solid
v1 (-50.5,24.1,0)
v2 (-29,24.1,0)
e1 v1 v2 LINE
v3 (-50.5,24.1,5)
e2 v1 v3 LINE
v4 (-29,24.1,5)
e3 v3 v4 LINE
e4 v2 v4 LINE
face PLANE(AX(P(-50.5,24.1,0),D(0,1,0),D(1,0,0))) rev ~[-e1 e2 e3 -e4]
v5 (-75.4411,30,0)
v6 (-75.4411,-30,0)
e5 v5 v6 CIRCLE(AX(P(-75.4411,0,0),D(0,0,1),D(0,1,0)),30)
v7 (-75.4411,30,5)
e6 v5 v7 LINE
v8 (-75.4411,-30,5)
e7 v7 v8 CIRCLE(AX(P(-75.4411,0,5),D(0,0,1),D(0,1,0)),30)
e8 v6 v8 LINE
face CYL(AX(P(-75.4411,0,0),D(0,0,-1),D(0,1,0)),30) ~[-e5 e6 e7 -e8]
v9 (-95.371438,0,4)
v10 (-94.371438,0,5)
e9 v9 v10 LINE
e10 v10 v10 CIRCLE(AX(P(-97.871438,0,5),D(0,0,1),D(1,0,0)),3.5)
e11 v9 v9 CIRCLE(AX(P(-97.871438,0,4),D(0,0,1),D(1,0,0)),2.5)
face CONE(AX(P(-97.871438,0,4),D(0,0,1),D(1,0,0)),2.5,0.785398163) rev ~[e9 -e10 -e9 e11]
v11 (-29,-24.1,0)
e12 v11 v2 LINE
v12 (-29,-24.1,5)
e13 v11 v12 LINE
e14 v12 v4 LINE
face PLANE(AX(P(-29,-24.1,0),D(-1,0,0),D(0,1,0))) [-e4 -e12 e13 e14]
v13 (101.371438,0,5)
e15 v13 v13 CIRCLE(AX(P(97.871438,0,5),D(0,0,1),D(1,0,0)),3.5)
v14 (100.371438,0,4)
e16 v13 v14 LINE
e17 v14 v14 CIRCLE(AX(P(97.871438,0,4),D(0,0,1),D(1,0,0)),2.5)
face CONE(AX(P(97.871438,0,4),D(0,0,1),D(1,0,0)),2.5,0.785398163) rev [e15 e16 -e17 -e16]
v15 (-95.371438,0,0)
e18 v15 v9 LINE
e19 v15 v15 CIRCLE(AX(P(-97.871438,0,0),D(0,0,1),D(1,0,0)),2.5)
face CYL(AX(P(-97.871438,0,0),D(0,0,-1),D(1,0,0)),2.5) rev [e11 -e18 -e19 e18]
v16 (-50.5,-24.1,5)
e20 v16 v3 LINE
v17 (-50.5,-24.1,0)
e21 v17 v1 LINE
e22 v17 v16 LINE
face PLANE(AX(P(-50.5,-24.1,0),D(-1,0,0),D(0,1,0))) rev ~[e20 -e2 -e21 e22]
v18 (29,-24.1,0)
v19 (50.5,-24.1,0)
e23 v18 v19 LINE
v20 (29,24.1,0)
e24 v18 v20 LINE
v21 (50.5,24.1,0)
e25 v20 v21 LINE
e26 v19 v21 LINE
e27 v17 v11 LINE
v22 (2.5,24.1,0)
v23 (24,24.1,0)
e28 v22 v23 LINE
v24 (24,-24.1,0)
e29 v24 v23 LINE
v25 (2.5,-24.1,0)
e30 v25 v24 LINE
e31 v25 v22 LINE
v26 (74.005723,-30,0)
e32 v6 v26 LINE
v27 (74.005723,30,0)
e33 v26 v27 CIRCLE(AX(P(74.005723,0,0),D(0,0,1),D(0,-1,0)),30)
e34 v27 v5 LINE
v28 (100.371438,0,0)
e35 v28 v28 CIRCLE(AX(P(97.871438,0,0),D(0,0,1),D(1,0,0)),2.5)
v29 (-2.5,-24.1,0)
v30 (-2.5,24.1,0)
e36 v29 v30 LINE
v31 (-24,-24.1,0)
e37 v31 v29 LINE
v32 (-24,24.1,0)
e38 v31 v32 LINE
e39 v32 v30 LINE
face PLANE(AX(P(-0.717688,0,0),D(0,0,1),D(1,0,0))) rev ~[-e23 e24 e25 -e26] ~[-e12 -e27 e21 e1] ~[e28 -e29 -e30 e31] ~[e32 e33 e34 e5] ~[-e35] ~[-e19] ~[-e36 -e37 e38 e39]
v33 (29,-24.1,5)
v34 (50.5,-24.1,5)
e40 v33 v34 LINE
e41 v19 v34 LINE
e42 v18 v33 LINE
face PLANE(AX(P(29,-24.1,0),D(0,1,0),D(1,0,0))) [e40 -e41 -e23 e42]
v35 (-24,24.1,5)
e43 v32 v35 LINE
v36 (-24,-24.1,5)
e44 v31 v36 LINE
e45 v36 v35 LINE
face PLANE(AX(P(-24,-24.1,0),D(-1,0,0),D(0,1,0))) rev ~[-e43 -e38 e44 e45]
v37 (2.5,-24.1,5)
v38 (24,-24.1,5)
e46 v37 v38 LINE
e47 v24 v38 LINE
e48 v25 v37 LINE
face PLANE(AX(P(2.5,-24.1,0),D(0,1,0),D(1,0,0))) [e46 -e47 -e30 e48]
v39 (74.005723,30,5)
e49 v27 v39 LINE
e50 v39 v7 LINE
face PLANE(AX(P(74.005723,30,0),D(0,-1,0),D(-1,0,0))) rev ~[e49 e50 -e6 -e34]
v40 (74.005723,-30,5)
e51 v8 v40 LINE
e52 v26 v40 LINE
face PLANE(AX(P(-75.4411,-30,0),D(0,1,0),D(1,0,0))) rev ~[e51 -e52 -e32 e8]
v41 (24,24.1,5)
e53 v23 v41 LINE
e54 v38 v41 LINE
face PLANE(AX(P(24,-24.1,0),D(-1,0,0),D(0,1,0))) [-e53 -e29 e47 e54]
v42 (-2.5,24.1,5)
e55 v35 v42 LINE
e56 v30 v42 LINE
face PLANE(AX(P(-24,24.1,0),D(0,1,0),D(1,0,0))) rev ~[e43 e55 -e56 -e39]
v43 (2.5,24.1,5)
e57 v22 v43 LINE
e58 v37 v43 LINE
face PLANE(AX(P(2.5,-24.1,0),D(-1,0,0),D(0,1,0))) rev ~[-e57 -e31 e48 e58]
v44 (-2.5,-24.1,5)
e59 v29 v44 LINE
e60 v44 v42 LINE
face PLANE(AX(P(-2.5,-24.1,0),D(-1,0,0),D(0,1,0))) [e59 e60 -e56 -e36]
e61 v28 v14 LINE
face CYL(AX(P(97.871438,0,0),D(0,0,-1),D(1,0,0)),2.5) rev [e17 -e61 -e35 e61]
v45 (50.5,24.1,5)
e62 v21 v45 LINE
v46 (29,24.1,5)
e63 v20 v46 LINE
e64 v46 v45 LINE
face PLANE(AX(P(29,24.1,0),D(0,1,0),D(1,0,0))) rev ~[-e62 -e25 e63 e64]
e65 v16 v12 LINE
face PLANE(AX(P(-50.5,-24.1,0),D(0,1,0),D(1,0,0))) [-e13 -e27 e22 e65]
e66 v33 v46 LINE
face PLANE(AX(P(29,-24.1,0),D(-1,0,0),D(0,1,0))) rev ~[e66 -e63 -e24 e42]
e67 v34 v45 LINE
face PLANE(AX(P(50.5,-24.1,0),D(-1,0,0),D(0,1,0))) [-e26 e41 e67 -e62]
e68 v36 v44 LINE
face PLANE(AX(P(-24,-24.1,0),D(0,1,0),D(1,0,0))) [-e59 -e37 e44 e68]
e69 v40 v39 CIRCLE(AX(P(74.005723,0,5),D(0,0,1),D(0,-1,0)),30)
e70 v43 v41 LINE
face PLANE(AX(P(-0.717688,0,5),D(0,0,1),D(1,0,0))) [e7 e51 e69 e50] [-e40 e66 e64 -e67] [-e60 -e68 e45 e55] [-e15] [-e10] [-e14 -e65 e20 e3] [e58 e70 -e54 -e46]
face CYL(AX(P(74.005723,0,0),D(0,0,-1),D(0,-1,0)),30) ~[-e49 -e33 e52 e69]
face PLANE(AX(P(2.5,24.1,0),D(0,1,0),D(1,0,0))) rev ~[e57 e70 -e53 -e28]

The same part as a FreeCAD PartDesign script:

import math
import FreeCAD as App
import Part
import Sketcher

V = App.Vector


def edges_at(feature, points):
    """Names of the edges that pass closest to the given points."""
    edges = feature.Shape.Edges
    near = lambda p: min(range(len(edges)), key=lambda i: edges[i].distToShape(Part.Vertex(*p))[0])
    return sorted({f"Edge{near(p) + 1}" for p in points})


def add_polygon(sketch, points):
    """Adds a closed chain of lines whose ends are joined by coincident constraints."""
    first, n = sketch.GeometryCount, len(points)
    for a, b in zip(points, points[1:] + points[:1]):
        sketch.addGeometry(Part.LineSegment(App.Vector(*a, 0), App.Vector(*b, 0)), False)
    for i in range(n):
        sketch.addConstraint(Sketcher.Constraint("Coincident", first + i, 2, first + (i + 1) % n, 1))

doc = App.newDocument("Part")
params = doc.addObject("Spreadsheet::Sheet", "Params")
for row, (alias, value) in enumerate([
    ("sketch1_diameter", "5 mm"),
    ("sketch1_radius", "30 mm"),
    ("sketch1_width", "21.5 mm"),
    ("sketch1_height", "48.2 mm"),
    ("pad1_length", "5 mm"),
    ("chamfer_size", "1 mm"),
    ("chamfer2_size", "1 mm"),
], start=1):
    params.set(f"A{row}", alias)
    params.set(f"B{row}", "=" + value)
    params.setAlias(f"B{row}", alias)

body = doc.addObject("PartDesign::Body", "Body")

sketch1 = body.newObject("Sketcher::SketchObject", "Sketch")
sketch1.AttachmentSupport = (doc.getObject("XY_Plane"), [""])
sketch1.MapMode = "FlatFace"
sketch1.addGeometry(Part.LineSegment(V(74, 30, 0), V(-75.4, 30, 0)), False)
sketch1.addGeometry(Part.ArcOfCircle(Part.Circle(V(-75.4, 0, 0), V(0, 0, 1), 30), math.radians(90), math.radians(270)), False)
sketch1.addGeometry(Part.LineSegment(V(-75.4, -30, 0), V(74, -30, 0)), False)
sketch1.addGeometry(Part.ArcOfCircle(Part.Circle(V(74, 0, 0), V(0, 0, 1), 30), math.radians(-90), math.radians(90)), False)
sketch1.addGeometry(Part.Circle(V(-97.9, 0, 0), V(0, 0, 1), 2.5), False)
add_polygon(sketch1, [(-29, -24.1), (-50.5, -24.1), (-50.5, 24.1), (-29, 24.1)])
add_polygon(sketch1, [(-2.5, -24.1), (-24, -24.1), (-24, 24.1), (-2.5, 24.1)])
add_polygon(sketch1, [(24, -24.1), (2.5, -24.1), (2.5, 24.1), (24, 24.1)])
add_polygon(sketch1, [(50.5, -24.1), (29, -24.1), (29, 24.1), (50.5, 24.1)])
sketch1.addGeometry(Part.Circle(V(97.9, 0, 0), V(0, 0, 1), 2.5), False)
sketch1.addConstraint([
    Sketcher.Constraint("Tangent", 0, 2, 1, 1),
    Sketcher.Constraint("Tangent", 1, 2, 2, 1),
    Sketcher.Constraint("Tangent", 2, 2, 3, 1),
    Sketcher.Constraint("Tangent", 3, 2, 0, 1),
    Sketcher.Constraint("Horizontal", 0),
    Sketcher.Constraint("Horizontal", 2),
    Sketcher.Constraint("Horizontal", 5),
    Sketcher.Constraint("Vertical", 6),
    Sketcher.Constraint("Horizontal", 7),
    Sketcher.Constraint("Vertical", 8),
    Sketcher.Constraint("Horizontal", 9),
    Sketcher.Constraint("Vertical", 10),
    Sketcher.Constraint("Horizontal", 11),
    Sketcher.Constraint("Vertical", 12),
    Sketcher.Constraint("Horizontal", 13),
    Sketcher.Constraint("Vertical", 14),
    Sketcher.Constraint("Horizontal", 15),
    Sketcher.Constraint("Vertical", 16),
    Sketcher.Constraint("Horizontal", 17),
    Sketcher.Constraint("Vertical", 18),
    Sketcher.Constraint("Horizontal", 19),
    Sketcher.Constraint("Vertical", 20),
    Sketcher.Constraint("Equal", 4, 21),
    Sketcher.Constraint("Symmetric", 4, 3, 21, 3, -1, 1),
    Sketcher.Constraint("Symmetric", 11, 2, 13, 2, -1, 1),
    Sketcher.Constraint("Symmetric", 9, 2, 15, 2, -1, 1),
    Sketcher.Constraint("Symmetric", 7, 2, 17, 2, -1, 1),
    Sketcher.Constraint("Symmetric", 5, 2, 19, 2, -1, 1),
    Sketcher.Constraint("PointOnObject", 1, 3, -1),
    Sketcher.Constraint("PointOnObject", 4, 3, -1),
    Sketcher.Constraint("Horizontal", 8, 2, 9, 2),
    Sketcher.Constraint("Horizontal", 7, 2, 10, 2),
    Sketcher.Constraint("Horizontal", 12, 2, 13, 2),
    Sketcher.Constraint("Equal", 7, 9),
    Sketcher.Constraint("Diameter", 4, 5.0),
    Sketcher.Constraint("Radius", 1, 30.0),
    Sketcher.Constraint("DistanceX", 5, 2, 5, 1, 21.5),
    Sketcher.Constraint("DistanceY", 6, 1, 6, 2, 48.2),
    Sketcher.Constraint("DistanceX", 7, 2, -1, 1, 29.0),
    Sketcher.Constraint("DistanceX", 9, 2, -1, 1, 24.0),
    Sketcher.Constraint("DistanceX", 1, 3, -1, 1, 75.4411),
    Sketcher.Constraint("DistanceX", 0, 2, 0, 1, 149.446823),
    Sketcher.Constraint("DistanceX", 4, 3, 3, 3, 171.877161),
])
sketch1.setExpression("Constraints[50]", "Params.sketch1_diameter")
sketch1.setExpression("Constraints[51]", "Params.sketch1_radius")
sketch1.setExpression("Constraints[52]", "Params.sketch1_width")
sketch1.setExpression("Constraints[53]", "Params.sketch1_height")
pad1 = body.newObject("PartDesign::Pad", "Pad")
pad1.Profile = sketch1
pad1.setExpression("Length", "Params.pad1_length")
doc.recompute()

chamfer = body.newObject("PartDesign::Chamfer", "Chamfer")
chamfer.Base = (pad1, edges_at(pad1, [(-100.371, 0, 5)]))
chamfer.setExpression("Size", "Params.chamfer_size")
doc.recompute()

chamfer2 = body.newObject("PartDesign::Chamfer", "Chamfer001")
chamfer2.Base = (chamfer, edges_at(chamfer, [(95.371, 0, 5)]))
chamfer2.setExpression("Size", "Params.chamfer2_size")

doc.recompute()
